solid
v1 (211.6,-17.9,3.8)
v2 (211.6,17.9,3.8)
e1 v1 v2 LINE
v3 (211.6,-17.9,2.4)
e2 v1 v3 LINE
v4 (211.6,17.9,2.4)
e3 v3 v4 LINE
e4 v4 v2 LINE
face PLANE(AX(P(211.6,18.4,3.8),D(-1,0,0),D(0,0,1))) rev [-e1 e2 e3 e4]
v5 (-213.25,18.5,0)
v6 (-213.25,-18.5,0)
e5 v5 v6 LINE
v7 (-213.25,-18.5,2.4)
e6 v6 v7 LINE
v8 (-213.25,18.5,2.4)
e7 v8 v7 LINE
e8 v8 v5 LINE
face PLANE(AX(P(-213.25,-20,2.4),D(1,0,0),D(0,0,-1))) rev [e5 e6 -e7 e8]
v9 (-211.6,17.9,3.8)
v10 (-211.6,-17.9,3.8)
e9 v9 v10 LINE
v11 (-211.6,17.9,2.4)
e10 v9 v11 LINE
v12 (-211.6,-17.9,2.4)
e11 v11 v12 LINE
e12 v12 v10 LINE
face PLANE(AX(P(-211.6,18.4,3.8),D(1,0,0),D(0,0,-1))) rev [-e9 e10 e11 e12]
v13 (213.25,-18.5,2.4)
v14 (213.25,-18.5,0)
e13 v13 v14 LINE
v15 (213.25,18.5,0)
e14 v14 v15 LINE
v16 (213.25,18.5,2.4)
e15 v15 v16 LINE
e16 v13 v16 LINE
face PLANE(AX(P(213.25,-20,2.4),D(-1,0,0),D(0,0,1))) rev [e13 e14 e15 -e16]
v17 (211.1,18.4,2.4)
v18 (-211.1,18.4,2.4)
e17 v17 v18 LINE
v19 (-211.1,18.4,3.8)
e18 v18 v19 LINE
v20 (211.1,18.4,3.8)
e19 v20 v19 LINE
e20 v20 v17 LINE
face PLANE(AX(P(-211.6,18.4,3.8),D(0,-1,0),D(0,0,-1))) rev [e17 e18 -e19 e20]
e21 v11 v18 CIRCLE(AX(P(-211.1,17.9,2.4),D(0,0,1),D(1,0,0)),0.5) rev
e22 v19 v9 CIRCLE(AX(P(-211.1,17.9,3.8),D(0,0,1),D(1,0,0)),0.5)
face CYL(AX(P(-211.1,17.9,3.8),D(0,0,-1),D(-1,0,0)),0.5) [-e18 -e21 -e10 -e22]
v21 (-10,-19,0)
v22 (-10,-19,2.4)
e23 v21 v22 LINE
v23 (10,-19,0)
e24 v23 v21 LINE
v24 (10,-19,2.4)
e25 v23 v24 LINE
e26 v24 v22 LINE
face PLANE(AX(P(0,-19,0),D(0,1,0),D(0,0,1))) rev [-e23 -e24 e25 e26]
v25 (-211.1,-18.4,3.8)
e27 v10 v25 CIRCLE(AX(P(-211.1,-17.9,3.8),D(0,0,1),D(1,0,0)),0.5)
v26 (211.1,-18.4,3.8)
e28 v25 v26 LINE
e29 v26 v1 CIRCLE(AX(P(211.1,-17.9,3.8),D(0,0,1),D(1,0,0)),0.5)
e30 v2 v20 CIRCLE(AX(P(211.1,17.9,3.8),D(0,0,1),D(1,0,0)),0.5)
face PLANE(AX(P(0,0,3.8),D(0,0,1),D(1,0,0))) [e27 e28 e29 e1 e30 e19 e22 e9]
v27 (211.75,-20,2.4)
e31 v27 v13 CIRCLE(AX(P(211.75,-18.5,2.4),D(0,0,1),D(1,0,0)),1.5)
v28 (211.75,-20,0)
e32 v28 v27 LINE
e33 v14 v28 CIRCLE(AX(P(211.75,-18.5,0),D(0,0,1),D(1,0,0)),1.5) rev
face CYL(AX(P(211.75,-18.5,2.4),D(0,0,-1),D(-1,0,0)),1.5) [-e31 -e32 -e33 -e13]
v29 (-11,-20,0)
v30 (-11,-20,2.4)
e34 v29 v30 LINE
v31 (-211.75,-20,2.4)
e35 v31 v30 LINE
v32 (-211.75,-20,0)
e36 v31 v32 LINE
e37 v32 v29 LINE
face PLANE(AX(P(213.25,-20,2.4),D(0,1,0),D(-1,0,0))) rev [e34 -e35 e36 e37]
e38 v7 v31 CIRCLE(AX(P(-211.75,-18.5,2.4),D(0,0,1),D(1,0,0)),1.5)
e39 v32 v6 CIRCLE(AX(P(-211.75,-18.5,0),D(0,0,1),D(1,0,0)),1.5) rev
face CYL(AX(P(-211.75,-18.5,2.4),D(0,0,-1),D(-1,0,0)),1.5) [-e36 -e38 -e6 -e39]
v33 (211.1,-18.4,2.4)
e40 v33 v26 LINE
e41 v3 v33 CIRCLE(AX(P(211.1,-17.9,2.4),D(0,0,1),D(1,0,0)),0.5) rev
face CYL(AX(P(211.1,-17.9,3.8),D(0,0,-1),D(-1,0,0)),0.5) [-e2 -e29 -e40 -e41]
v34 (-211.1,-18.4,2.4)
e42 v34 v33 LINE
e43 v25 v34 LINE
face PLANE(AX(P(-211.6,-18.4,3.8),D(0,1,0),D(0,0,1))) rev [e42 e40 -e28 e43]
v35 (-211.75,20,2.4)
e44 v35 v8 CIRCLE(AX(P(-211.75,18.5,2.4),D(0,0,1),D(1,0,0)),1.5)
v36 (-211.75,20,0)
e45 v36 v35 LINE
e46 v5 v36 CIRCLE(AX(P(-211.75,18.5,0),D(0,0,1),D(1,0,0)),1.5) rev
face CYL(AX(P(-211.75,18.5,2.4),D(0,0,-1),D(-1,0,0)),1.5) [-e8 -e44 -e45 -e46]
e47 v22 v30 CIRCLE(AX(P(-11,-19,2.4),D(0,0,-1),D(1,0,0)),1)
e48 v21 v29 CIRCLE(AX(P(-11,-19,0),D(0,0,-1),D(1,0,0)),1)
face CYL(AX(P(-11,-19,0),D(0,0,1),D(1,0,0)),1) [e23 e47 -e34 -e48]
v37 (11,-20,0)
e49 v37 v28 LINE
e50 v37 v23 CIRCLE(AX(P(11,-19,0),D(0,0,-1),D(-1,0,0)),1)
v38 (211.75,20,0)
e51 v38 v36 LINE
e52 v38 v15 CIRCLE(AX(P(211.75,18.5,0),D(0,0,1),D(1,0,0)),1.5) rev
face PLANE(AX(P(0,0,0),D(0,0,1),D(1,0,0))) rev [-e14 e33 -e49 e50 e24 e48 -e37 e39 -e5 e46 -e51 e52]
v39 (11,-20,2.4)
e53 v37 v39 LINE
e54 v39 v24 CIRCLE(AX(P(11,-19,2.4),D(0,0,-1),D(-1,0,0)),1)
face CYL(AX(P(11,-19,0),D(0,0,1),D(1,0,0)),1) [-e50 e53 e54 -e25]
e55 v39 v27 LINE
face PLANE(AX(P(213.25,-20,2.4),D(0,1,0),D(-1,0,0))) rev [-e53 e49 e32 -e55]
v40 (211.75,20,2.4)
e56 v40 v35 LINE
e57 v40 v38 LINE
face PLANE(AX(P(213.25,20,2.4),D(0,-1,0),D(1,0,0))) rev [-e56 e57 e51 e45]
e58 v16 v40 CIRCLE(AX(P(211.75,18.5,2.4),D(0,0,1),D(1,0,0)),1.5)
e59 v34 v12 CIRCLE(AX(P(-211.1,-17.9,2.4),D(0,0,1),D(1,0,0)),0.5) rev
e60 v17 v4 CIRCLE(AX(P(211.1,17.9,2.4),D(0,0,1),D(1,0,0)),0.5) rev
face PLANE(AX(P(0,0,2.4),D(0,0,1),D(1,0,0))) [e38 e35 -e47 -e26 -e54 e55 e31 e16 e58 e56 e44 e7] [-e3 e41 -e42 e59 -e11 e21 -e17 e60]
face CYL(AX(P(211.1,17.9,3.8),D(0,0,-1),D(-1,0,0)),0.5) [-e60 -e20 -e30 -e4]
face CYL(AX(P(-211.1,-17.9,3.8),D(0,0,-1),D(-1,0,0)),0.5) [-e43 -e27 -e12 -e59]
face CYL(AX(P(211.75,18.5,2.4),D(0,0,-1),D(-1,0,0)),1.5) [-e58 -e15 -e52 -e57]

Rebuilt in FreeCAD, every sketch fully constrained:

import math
import FreeCAD as App
import Part
import Sketcher
from FreeCAD import Vector
Q = App.Units.Quantity


def edges_at(feature, points):
    """Names of the edges that pass closest to the given points."""
    edges = feature.Shape.Edges
    near = lambda p: min(range(len(edges)), key=lambda i: edges[i].distToShape(Part.Vertex(*p))[0])
    return sorted({f"Edge{near(p) + 1}" for p in points})

doc = App.newDocument("Part")
body = doc.addObject("PartDesign::Body", "Body")

sketch1 = body.newObject("Sketcher::SketchObject", "Sketch")
sketch1.AttachmentSupport = (doc.getObject("XY_Plane"), [""])
sketch1.MapMode = "FlatFace"
sketch1.addGeometry(Part.LineSegment(Vector(-213, 20, 0), Vector(-213, -20, 0)), False)
sketch1.addGeometry(Part.LineSegment(Vector(-213, -20, 0), Vector(213, -20, 0)), False)
sketch1.addGeometry(Part.LineSegment(Vector(213, -20, 0), Vector(213, 20, 0)), False)
sketch1.addGeometry(Part.LineSegment(Vector(213, 20, 0), Vector(-213, 20, 0)), False)
sketch1.addConstraint(Sketcher.Constraint("Coincident", 0, 2, 1, 1))
sketch1.addConstraint(Sketcher.Constraint("Coincident", 1, 2, 2, 1))
sketch1.addConstraint(Sketcher.Constraint("Coincident", 2, 2, 3, 1))
sketch1.addConstraint(Sketcher.Constraint("Coincident", 3, 2, 0, 1))
sketch1.addConstraint(Sketcher.Constraint("Vertical", 0))
sketch1.addConstraint(Sketcher.Constraint("Horizontal", 1))
sketch1.addConstraint(Sketcher.Constraint("Vertical", 2))
sketch1.addConstraint(Sketcher.Constraint("Horizontal", 3))
sketch1.addConstraint(Sketcher.Constraint("Symmetric", 0, 2, 2, 2, -1, 1))
sketch1.addConstraint(Sketcher.Constraint("DistanceY", 0, 2, 0, 1, Q("40 mm")))
sketch1.addConstraint(Sketcher.Constraint("DistanceX", 1, 1, 1, 2, Q("426.5 mm")))
pad1 = body.newObject("PartDesign::Pad", "Pad")
pad1.Profile = sketch1
pad1.Length = 2.4

sketch2 = body.newObject("Sketcher::SketchObject", "Sketch001")
sketch2.AttachmentSupport = (doc.getObject("XY_Plane"), [""])
sketch2.MapMode = "FlatFace"
sketch2.AttachmentOffset = App.Placement(Vector(0, 0, 2.4), App.Rotation())
sketch2.addGeometry(Part.LineSegment(Vector(-212, 18, 0), Vector(-212, -18, 0)), False)
sketch2.addGeometry(Part.LineSegment(Vector(-212, -18, 0), Vector(212, -18, 0)), False)
sketch2.addGeometry(Part.LineSegment(Vector(212, -18, 0), Vector(212, 18, 0)), False)
sketch2.addGeometry(Part.LineSegment(Vector(212, 18, 0), Vector(-212, 18, 0)), False)
sketch2.addConstraint(Sketcher.Constraint("Coincident", 0, 2, 1, 1))
sketch2.addConstraint(Sketcher.Constraint("Coincident", 1, 2, 2, 1))
sketch2.addConstraint(Sketcher.Constraint("Coincident", 2, 2, 3, 1))
sketch2.addConstraint(Sketcher.Constraint("Coincident", 3, 2, 0, 1))
sketch2.addConstraint(Sketcher.Constraint("Vertical", 0))
sketch2.addConstraint(Sketcher.Constraint("Horizontal", 1))
sketch2.addConstraint(Sketcher.Constraint("Vertical", 2))
sketch2.addConstraint(Sketcher.Constraint("Horizontal", 3))
sketch2.addConstraint(Sketcher.Constraint("Symmetric", 0, 2, 2, 2, -1, 1))
sketch2.addConstraint(Sketcher.Constraint("DistanceX", 1, 1, 1, 2, Q("423.2 mm")))
sketch2.addConstraint(Sketcher.Constraint("DistanceY", 0, 2, 0, 1, Q("36.8 mm")))
pad2 = body.newObject("PartDesign::Pad", "Pad001")
pad2.Profile = sketch2
pad2.Length = 1.4
doc.recompute()

fillet = body.newObject("PartDesign::Fillet", "Fillet")
fillet.Base = (pad2, edges_at(pad2, [
    (-213.25, 20, 1.2),
    (213.25, 20, 1.2),
    (213.25, -20, 1.2),
    (-213.25, -20, 1.2),
]))
fillet.Radius = 1.5
doc.recompute()

fillet2 = body.newObject("PartDesign::Fillet", "Fillet001")
fillet2.Base = (fillet, edges_at(fillet, [
    (211.6, -18.4, 3.1),
    (211.6, 18.4, 3.1),
    (-211.6, 18.4, 3.1),
    (-211.6, -18.4, 3.1),
]))
fillet2.Radius = 0.5

sketch3 = body.newObject("Sketcher::SketchObject", "Sketch002")
sketch3.AttachmentSupport = (doc.getObject("XY_Plane"), [""])
sketch3.MapMode = "FlatFace"
sketch3.AttachmentOffset = App.Placement(Vector(0, 0, 2.4), App.Rotation())
sketch3.addGeometry(Part.ArcOfCircle(Part.Circle(Vector(-11, -19, 0), Vector(0, 0, 1), 1), math.radians(-90), math.radians(0)), False)
sketch3.addGeometry(Part.LineSegment(Vector(-11, -20, 0), Vector(-11, -20.12, 0)), False)
sketch3.addGeometry(Part.LineSegment(Vector(-11, -20.12, 0), Vector(11, -20.12, 0)), False)
sketch3.addGeometry(Part.LineSegment(Vector(11, -20.12, 0), Vector(11, -20, 0)), False)
sketch3.addGeometry(Part.ArcOfCircle(Part.Circle(Vector(11, -19, 0), Vector(0, 0, 1), 1), math.radians(-180), math.radians(-90)), False)
sketch3.addGeometry(Part.LineSegment(Vector(10, -19, 0), Vector(-10, -19, 0)), False)
sketch3.addConstraint(Sketcher.Constraint("Coincident", 0, 1, 1, 1))
sketch3.addConstraint(Sketcher.Constraint("Coincident", 1, 2, 2, 1))
sketch3.addConstraint(Sketcher.Constraint("Coincident", 2, 2, 3, 1))
sketch3.addConstraint(Sketcher.Constraint("Coincident", 3, 2, 4, 2))
sketch3.addConstraint(Sketcher.Constraint("Coincident", 4, 1, 5, 1))
sketch3.addConstraint(Sketcher.Constraint("Coincident", 5, 2, 0, 2))
sketch3.addConstraint(Sketcher.Constraint("Vertical", 1))
sketch3.addConstraint(Sketcher.Constraint("Horizontal", 2))
sketch3.addConstraint(Sketcher.Constraint("Vertical", 3))
sketch3.addConstraint(Sketcher.Constraint("Horizontal", 5))
sketch3.addConstraint(Sketcher.Constraint("Equal", 0, 4))
sketch3.addConstraint(Sketcher.Constraint("Symmetric", 0, 3, 4, 3, -2))
sketch3.addConstraint(Sketcher.Constraint("Horizontal", 0, 3, 4, 1))
sketch3.addConstraint(Sketcher.Constraint("Vertical", 4, 3, 2, 2))
sketch3.addConstraint(Sketcher.Constraint("Radius", 0, Q("1 mm")))
sketch3.addConstraint(Sketcher.Constraint("DistanceX", 2, 1, 2, 2, Q("22 mm")))
sketch3.addConstraint(Sketcher.Constraint("DistanceX", 5, 2, 5, 1, Q("20 mm")))
sketch3.addConstraint(Sketcher.Constraint("DistanceY", 0, 3, -1, 1, Q("19 mm")))
sketch3.addConstraint(Sketcher.Constraint("DistanceY", 1, 2, 1, 1, Q("0.116946 mm")))
pocket1 = body.newObject("PartDesign::Pocket", "Pocket")
pocket1.Profile = sketch3
pocket1.Type = "ThroughAll"

doc.recompute()
